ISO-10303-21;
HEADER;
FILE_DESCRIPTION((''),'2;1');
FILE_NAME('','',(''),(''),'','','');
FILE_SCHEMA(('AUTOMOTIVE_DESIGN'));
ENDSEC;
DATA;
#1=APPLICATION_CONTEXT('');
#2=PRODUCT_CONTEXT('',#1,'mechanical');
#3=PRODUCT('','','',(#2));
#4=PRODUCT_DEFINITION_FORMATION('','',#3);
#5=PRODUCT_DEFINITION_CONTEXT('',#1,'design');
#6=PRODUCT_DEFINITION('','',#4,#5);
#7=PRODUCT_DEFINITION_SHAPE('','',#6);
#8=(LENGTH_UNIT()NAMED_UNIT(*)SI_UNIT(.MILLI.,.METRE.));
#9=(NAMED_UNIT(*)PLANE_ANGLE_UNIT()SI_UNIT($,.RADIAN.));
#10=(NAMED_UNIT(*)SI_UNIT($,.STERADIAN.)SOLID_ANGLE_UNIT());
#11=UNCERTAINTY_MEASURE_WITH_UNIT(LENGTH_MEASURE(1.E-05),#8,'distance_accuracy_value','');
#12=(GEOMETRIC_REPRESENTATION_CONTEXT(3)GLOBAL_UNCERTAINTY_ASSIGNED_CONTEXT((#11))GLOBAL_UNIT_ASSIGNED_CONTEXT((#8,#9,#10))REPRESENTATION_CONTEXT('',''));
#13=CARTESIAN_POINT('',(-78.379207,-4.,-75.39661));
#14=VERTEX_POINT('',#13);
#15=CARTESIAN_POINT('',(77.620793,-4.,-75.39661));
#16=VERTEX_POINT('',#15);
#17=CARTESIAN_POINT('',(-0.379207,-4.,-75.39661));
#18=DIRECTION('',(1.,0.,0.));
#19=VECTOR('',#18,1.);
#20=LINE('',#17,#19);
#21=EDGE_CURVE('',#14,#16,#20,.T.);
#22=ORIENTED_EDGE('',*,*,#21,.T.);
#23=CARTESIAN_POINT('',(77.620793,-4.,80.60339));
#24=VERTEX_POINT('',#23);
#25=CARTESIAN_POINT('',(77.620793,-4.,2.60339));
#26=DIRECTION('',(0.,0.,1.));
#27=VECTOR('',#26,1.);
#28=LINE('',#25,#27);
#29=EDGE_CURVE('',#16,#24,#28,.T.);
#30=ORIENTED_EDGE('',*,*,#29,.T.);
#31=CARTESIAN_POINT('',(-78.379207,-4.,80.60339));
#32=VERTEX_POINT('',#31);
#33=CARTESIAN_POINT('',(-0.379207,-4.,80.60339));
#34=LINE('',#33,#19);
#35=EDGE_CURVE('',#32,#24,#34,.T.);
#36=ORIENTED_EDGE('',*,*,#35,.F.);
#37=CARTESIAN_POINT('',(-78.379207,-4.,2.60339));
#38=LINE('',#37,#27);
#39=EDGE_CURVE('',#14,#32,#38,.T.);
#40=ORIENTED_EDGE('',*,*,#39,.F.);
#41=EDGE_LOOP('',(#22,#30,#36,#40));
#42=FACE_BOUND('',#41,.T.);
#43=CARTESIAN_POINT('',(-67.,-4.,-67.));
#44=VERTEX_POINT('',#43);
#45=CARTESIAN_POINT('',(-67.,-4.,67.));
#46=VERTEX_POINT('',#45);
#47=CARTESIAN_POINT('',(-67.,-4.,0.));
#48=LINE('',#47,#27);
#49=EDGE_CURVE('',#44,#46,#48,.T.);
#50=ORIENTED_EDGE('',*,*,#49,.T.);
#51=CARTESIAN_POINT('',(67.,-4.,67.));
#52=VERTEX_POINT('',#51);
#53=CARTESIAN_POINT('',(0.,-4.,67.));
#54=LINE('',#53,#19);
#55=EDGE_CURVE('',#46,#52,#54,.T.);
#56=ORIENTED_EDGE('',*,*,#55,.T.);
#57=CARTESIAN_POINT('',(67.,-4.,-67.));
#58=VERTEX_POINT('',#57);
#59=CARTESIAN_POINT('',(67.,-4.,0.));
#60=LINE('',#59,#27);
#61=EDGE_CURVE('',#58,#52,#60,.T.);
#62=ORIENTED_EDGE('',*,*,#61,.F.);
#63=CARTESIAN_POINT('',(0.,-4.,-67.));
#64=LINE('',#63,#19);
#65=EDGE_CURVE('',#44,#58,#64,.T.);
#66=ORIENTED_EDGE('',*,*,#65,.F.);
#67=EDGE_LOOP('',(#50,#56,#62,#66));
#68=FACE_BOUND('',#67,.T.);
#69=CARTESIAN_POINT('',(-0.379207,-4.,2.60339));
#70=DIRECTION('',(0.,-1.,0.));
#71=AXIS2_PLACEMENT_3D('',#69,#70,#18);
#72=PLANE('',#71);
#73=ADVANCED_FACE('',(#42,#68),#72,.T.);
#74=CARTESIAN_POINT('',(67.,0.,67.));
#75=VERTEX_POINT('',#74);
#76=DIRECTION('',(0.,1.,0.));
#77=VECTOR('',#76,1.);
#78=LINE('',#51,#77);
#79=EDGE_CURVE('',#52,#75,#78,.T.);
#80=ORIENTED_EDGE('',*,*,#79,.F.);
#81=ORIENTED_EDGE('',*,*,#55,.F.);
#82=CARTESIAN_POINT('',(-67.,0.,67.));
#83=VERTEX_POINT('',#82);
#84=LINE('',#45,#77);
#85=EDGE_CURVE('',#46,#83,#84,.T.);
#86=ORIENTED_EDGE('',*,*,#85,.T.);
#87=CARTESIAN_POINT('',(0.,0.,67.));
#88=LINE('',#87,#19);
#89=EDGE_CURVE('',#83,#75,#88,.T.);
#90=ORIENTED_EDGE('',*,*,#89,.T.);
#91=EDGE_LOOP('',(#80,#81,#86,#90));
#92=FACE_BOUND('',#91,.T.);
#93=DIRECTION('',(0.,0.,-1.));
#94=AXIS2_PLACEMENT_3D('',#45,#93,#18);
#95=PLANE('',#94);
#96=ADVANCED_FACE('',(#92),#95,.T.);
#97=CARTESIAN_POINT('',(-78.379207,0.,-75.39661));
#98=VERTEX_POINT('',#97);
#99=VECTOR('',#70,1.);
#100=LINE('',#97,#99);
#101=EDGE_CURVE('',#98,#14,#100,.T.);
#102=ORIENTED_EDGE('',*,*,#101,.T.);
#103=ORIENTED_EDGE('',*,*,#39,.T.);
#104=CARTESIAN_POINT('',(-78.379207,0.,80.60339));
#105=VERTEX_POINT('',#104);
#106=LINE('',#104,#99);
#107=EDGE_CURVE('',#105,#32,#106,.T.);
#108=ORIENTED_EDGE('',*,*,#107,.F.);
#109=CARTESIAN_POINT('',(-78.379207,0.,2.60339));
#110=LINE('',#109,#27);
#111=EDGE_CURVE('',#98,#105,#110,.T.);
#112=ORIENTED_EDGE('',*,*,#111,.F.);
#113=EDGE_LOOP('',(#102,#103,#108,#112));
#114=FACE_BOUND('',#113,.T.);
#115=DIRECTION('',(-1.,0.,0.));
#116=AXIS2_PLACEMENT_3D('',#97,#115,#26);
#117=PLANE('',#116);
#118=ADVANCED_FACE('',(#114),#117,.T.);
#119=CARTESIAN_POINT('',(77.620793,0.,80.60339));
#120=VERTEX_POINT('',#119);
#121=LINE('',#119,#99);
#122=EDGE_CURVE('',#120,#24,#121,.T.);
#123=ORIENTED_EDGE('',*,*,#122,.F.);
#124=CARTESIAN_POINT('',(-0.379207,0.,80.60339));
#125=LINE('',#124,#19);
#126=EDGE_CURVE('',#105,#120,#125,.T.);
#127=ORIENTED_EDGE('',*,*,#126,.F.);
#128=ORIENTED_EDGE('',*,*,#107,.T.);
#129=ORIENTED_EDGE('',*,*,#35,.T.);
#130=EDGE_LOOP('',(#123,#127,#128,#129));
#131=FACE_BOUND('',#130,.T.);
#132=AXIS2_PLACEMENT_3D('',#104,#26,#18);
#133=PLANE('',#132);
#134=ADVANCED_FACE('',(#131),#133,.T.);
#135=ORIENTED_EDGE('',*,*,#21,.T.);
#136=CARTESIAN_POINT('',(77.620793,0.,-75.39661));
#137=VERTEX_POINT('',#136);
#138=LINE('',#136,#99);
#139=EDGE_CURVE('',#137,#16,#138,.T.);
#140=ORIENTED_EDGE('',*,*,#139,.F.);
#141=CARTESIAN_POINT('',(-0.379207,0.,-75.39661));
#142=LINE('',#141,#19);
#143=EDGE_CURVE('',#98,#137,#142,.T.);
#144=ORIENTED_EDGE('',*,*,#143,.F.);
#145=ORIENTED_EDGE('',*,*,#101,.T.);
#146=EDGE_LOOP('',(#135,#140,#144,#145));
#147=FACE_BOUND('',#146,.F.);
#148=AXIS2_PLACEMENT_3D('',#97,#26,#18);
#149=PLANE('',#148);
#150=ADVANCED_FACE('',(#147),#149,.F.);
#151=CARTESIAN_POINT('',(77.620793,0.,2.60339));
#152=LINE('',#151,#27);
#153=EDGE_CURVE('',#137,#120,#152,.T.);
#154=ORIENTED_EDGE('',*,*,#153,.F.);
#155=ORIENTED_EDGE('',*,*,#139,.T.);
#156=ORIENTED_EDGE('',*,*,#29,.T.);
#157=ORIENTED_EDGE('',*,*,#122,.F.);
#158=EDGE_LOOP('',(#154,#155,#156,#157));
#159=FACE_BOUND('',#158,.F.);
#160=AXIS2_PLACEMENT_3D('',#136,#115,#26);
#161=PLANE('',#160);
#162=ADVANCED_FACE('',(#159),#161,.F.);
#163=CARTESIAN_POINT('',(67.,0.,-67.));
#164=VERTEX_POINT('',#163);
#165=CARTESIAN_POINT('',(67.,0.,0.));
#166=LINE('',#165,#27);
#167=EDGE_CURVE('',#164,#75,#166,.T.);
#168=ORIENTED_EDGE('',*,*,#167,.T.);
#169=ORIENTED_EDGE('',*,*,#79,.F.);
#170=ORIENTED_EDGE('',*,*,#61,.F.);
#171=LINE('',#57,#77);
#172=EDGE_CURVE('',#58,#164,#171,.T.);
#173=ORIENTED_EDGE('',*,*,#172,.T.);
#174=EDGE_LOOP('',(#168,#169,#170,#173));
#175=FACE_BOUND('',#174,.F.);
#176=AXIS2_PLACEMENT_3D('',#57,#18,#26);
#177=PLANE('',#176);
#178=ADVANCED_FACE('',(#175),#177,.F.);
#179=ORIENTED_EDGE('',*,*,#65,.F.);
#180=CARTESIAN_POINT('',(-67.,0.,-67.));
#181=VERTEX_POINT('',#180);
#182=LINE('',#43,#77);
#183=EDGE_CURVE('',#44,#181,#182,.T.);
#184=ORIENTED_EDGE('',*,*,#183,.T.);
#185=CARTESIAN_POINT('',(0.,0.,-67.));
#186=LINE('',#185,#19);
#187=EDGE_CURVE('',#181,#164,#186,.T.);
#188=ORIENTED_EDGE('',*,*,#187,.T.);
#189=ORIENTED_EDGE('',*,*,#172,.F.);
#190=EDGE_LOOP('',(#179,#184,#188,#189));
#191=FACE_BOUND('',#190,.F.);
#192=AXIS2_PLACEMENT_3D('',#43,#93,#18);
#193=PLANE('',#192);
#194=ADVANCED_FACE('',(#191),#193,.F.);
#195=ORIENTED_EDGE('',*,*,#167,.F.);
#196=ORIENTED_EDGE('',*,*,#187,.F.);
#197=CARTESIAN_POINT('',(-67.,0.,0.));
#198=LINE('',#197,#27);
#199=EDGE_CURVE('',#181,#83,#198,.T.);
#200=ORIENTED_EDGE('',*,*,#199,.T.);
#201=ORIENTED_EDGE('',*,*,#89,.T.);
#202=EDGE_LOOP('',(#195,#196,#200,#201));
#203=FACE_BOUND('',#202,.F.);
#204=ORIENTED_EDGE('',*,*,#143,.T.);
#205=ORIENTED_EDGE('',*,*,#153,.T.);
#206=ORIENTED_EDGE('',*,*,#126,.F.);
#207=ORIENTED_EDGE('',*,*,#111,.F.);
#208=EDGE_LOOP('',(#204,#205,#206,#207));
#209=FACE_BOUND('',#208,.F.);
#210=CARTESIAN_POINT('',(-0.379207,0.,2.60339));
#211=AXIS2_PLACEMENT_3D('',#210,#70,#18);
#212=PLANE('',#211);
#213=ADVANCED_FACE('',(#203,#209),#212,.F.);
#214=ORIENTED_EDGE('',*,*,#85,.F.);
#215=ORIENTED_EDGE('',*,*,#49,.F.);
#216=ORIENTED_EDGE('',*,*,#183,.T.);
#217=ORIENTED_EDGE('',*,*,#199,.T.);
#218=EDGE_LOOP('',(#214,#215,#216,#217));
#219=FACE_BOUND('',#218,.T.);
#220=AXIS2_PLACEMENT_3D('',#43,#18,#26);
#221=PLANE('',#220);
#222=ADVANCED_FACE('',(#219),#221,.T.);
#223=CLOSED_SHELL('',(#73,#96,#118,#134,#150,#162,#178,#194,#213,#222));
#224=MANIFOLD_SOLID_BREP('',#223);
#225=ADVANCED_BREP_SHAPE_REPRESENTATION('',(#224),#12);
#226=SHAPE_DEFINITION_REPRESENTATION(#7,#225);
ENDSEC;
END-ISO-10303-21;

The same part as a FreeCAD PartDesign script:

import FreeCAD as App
import Part
import Sketcher

V = App.Vector

doc = App.newDocument("Part")
body = doc.addObject("PartDesign::Body", "Body")

# Sketch on XZ plane
sketch1 = body.newObject("Sketcher::SketchObject", "Sketch")
sketch1.AttachmentSupport = (doc.getObject("XZ_Plane"), [""])
sketch1.MapMode = "FlatFace"
sketch1.addGeometry([
    Part.LineSegment(V(-78, 81, 0), V(-78, -75, 0)),
    Part.LineSegment(V(-78, -75, 0), V(78, -75, 0)),
    Part.LineSegment(V(78, -75, 0), V(78, 81, 0)),
    Part.LineSegment(V(78, 81, 0), V(-78, 81, 0)),
], False)
sketch1.addConstraint([
    Sketcher.Constraint("Coincident", 0, 2, 1, 1),
    Sketcher.Constraint("Coincident", 1, 2, 2, 1),
    Sketcher.Constraint("Coincident", 2, 2, 3, 1),
    Sketcher.Constraint("Coincident", 3, 2, 0, 1),
    Sketcher.Constraint("Vertical", 0),
    Sketcher.Constraint("Horizontal", 1),
    Sketcher.Constraint("Vertical", 2),
    Sketcher.Constraint("Horizontal", 3),
    Sketcher.Constraint("Equal", 3, 0),
    Sketcher.Constraint("DistanceX", 1, 1, 1, 2, 156.0),
    Sketcher.Constraint("DistanceY", 0, 2, -1, 1, 75.39661),
    Sketcher.Constraint("DistanceX", 0, 2, -1, 1, 78.379207),
])
pad1 = body.newObject("PartDesign::Pad", "Pad")
pad1.Profile = sketch1
pad1.Length = 4

# Sketch on XZ plane
sketch2 = body.newObject("Sketcher::SketchObject", "Sketch001")
sketch2.AttachmentSupport = (doc.getObject("XZ_Plane"), [""])
sketch2.MapMode = "FlatFace"
sketch2.AttachmentOffset = App.Placement(V(0, 0, 4), App.Rotation())
sketch2.addGeometry([
    Part.LineSegment(V(-67, 67, 0), V(-67, -67, 0)),
    Part.LineSegment(V(-67, -67, 0), V(67, -67, 0)),
    Part.LineSegment(V(67, -67, 0), V(67, 67, 0)),
    Part.LineSegment(V(67, 67, 0), V(-67, 67, 0)),
], False)
sketch2.addConstraint([
    Sketcher.Constraint("Coincident", 0, 2, 1, 1),
    Sketcher.Constraint("Coincident", 1, 2, 2, 1),
    Sketcher.Constraint("Coincident", 2, 2, 3, 1),
    Sketcher.Constraint("Coincident", 3, 2, 0, 1),
    Sketcher.Constraint("Vertical", 0),
    Sketcher.Constraint("Horizontal", 1),
    Sketcher.Constraint("Vertical", 2),
    Sketcher.Constraint("Horizontal", 3),
    Sketcher.Constraint("Symmetric", 0, 2, 2, 2, -1, 1),
    Sketcher.Constraint("Equal", 3, 0),
    Sketcher.Constraint("DistanceX", 1, 1, 1, 2, 134.0),
])
pocket1 = body.newObject("PartDesign::Pocket", "Pocket")
pocket1.Profile = sketch2
pocket1.Length = 4

doc.recompute()
